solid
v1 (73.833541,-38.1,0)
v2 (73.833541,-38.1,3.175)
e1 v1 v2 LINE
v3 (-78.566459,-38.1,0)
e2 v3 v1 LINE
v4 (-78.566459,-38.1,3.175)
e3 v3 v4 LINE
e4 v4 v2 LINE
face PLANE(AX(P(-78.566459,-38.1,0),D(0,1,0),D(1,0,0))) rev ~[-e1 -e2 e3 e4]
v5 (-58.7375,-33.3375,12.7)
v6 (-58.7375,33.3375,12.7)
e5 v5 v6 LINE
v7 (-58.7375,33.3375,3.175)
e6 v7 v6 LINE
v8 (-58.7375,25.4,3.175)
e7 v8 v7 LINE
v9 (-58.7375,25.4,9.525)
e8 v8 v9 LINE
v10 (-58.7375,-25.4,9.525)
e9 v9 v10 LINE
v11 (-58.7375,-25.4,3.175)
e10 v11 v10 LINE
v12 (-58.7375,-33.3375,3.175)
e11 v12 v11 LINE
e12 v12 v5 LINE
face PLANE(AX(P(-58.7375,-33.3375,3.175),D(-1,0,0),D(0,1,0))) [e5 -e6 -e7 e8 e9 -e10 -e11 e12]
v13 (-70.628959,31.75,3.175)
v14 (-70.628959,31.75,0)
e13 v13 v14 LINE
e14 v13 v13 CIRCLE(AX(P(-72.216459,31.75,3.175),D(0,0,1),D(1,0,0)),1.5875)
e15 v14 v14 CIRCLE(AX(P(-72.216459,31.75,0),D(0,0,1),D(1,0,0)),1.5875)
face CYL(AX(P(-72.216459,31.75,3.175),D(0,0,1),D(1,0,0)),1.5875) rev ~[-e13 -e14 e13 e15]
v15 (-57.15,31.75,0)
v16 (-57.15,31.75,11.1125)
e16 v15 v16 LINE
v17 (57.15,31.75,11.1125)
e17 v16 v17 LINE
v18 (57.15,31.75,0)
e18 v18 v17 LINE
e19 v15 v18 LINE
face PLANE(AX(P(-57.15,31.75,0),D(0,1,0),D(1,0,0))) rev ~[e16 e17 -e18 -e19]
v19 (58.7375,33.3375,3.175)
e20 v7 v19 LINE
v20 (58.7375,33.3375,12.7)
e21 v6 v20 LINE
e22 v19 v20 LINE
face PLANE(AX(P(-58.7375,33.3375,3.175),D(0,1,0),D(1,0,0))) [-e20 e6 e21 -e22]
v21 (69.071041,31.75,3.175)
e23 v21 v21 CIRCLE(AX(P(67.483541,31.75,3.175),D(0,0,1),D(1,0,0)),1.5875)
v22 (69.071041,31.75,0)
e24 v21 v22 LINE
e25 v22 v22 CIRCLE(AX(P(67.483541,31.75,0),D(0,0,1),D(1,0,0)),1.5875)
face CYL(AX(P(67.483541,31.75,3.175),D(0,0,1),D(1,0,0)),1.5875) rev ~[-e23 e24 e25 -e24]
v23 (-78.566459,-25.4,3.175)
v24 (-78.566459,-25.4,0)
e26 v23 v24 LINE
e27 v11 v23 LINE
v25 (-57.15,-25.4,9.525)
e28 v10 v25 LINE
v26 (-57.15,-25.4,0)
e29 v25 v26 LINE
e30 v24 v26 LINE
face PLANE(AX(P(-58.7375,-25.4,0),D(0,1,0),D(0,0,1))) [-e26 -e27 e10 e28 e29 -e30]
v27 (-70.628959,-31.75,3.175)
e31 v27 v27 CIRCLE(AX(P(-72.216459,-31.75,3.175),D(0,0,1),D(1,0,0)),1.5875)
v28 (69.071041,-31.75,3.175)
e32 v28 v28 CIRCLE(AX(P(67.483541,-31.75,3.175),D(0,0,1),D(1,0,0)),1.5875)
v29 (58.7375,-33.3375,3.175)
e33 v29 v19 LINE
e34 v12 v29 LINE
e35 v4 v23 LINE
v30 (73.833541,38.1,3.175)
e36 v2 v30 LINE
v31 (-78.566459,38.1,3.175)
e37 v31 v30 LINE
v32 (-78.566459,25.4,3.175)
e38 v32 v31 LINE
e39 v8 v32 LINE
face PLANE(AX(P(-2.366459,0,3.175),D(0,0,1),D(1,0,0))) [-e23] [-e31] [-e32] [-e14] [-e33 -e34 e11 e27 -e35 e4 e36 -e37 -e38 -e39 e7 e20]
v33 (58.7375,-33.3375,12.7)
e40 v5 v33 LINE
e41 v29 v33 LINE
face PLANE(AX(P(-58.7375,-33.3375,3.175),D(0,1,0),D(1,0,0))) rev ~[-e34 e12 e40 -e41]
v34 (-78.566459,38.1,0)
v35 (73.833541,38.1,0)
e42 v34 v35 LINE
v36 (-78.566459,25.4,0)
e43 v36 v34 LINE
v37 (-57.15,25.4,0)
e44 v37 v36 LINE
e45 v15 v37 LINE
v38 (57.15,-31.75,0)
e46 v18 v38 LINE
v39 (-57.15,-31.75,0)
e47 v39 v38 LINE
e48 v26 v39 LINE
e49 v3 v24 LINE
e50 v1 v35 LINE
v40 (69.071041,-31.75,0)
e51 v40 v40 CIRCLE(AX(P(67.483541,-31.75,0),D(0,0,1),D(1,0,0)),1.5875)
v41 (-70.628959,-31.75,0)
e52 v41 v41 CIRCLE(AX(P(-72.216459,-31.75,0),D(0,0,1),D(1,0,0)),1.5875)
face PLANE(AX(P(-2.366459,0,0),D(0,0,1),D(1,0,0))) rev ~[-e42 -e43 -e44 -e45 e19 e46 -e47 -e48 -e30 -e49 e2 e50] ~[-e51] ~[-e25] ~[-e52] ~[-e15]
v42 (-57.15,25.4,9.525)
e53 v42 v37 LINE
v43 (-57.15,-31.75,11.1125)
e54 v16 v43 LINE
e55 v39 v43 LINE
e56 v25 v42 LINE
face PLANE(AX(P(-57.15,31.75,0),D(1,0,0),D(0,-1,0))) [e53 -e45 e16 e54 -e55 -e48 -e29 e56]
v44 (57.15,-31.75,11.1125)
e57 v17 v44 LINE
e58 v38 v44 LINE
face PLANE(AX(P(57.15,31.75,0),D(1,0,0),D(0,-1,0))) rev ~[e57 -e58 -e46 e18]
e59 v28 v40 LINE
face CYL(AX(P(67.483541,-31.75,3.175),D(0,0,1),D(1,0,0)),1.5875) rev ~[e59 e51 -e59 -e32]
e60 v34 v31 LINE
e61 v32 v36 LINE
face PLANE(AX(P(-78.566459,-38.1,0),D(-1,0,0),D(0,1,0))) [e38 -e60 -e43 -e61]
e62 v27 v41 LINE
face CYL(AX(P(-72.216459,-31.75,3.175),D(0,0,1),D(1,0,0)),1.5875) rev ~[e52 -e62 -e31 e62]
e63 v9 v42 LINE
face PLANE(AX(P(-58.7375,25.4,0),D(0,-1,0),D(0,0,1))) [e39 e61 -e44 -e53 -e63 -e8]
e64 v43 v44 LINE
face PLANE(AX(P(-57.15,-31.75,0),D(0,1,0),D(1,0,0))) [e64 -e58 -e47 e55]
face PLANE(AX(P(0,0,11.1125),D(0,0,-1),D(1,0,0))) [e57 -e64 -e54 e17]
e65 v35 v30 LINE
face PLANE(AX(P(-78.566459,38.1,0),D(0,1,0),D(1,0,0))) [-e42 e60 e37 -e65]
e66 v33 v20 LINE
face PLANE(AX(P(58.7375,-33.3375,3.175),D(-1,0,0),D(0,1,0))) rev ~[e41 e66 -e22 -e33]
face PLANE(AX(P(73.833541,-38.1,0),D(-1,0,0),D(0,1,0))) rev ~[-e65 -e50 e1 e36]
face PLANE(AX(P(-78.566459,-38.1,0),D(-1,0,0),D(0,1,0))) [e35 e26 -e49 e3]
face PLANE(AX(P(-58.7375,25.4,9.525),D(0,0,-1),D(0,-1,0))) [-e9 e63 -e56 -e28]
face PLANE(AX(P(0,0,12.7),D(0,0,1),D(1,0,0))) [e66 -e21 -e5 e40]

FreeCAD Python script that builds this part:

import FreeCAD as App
import Part
import Sketcher

V = App.Vector
Q = App.Units.Quantity

doc = App.newDocument("Part")
body = doc.addObject("PartDesign::Body", "Body")

# Sketch on XY plane
sketch1 = body.newObject("Sketcher::SketchObject", "Sketch")
sketch1.AttachmentSupport = (doc.getObject("XY_Plane"), [""])
sketch1.MapMode = "FlatFace"
sketch1.addGeometry([
    Part.LineSegment(V(-79, 38, 0), V(-79, -38, 0)),
    Part.LineSegment(V(-79, -38, 0), V(74, -38, 0)),
    Part.LineSegment(V(74, -38, 0), V(74, 38, 0)),
    Part.LineSegment(V(74, 38, 0), V(-79, 38, 0)),
], False)
sketch1.addConstraint([
    Sketcher.Constraint("Coincident", 0, 2, 1, 1),
    Sketcher.Constraint("Coincident", 1, 2, 2, 1),
    Sketcher.Constraint("Coincident", 2, 2, 3, 1),
    Sketcher.Constraint("Coincident", 3, 2, 0, 1),
    Sketcher.Constraint("Vertical", 0),
    Sketcher.Constraint("Horizontal", 1),
    Sketcher.Constraint("Vertical", 2),
    Sketcher.Constraint("Horizontal", 3),
    Sketcher.Constraint("DistanceX", 1, 1, 1, 2, Q("6 in")),
    Sketcher.Constraint("DistanceY", 0, 2, 0, 1, Q("3 in")),
    Sketcher.Constraint("DistanceY", 0, 2, -1, 1, Q("1.5 in")),
    Sketcher.Constraint("DistanceX", 0, 2, -1, 1, Q("78.566459 mm")),
])
pad1 = body.newObject("PartDesign::Pad", "Pad")
pad1.Profile = sketch1
pad1.Length = Q("0.125 in")

# Sketch on XY plane
sketch2 = body.newObject("Sketcher::SketchObject", "Sketch001")
sketch2.AttachmentSupport = (doc.getObject("XY_Plane"), [""])
sketch2.MapMode = "FlatFace"
sketch2.AttachmentOffset = App.Placement(V(0, 0, 0.125 * 25.4), App.Rotation())
sketch2.addGeometry([
    Part.LineSegment(V(-59, 33, 0), V(-59, -33, 0)),
    Part.LineSegment(V(-59, -33, 0), V(59, -33, 0)),
    Part.LineSegment(V(59, -33, 0), V(59, 33, 0)),
    Part.LineSegment(V(59, 33, 0), V(-59, 33, 0)),
], False)
sketch2.addConstraint([
    Sketcher.Constraint("Coincident", 0, 2, 1, 1),
    Sketcher.Constraint("Coincident", 1, 2, 2, 1),
    Sketcher.Constraint("Coincident", 2, 2, 3, 1),
    Sketcher.Constraint("Coincident", 3, 2, 0, 1),
    Sketcher.Constraint("Vertical", 0),
    Sketcher.Constraint("Horizontal", 1),
    Sketcher.Constraint("Vertical", 2),
    Sketcher.Constraint("Horizontal", 3),
    Sketcher.Constraint("Symmetric", 0, 2, 2, 2, -1, 1),
    Sketcher.Constraint("DistanceX", 1, 1, 1, 2, Q("4.625 in")),
    Sketcher.Constraint("DistanceY", 0, 2, 0, 1, Q("2.625 in")),
])
pad2 = body.newObject("PartDesign::Pad", "Pad001")
pad2.Profile = sketch2
pad2.Length = Q("0.375 in")

# Sketch on XY plane
sketch3 = body.newObject("Sketcher::SketchObject", "Sketch002")
sketch3.AttachmentSupport = (doc.getObject("XY_Plane"), [""])
sketch3.MapMode = "FlatFace"
sketch3.addGeometry([
    Part.LineSegment(V(-57, -32, 0), V(-57, 32, 0)),
    Part.LineSegment(V(-57, 32, 0), V(57, 32, 0)),
    Part.LineSegment(V(57, 32, 0), V(57, -32, 0)),
    Part.LineSegment(V(57, -32, 0), V(-57, -32, 0)),
], False)
sketch3.addConstraint([
    Sketcher.Constraint("Coincident", 0, 2, 1, 1),
    Sketcher.Constraint("Coincident", 1, 2, 2, 1),
    Sketcher.Constraint("Coincident", 2, 2, 3, 1),
    Sketcher.Constraint("Coincident", 3, 2, 0, 1),
    Sketcher.Constraint("Vertical", 0),
    Sketcher.Constraint("Horizontal", 1),
    Sketcher.Constraint("Vertical", 2),
    Sketcher.Constraint("Horizontal", 3),
    Sketcher.Constraint("Symmetric", 0, 2, 2, 2, -1, 1),
    Sketcher.Constraint("DistanceX", 1, 1, 1, 2, Q("4.5 in")),
    Sketcher.Constraint("DistanceY", 0, 1, 0, 2, Q("2.5 in")),
])
pocket1 = body.newObject("PartDesign::Pocket", "Pocket")
pocket1.Profile = sketch3
pocket1.Length = Q("0.4375 in")
pocket1.Reversed = True

# Sketch on YZ plane
sketch4 = body.newObject("Sketcher::SketchObject", "Sketch003")
sketch4.AttachmentSupport = (doc.getObject("YZ_Plane"), [""])
sketch4.MapMode = "FlatFace"
sketch4.AttachmentOffset = App.Placement(V(0, 0, -2.3125 * 25.4), App.Rotation())
sketch4.addGeometry([
    Part.LineSegment(V(25, 10, 0), V(25, 0, 0)),
    Part.LineSegment(V(25, 0, 0), V(-25, 0, 0)),
    Part.LineSegment(V(-25, 0, 0), V(-25, 10, 0)),
    Part.LineSegment(V(-25, 10, 0), V(25, 10, 0)),
], False)
sketch4.addConstraint([
    Sketcher.Constraint("Coincident", 0, 2, 1, 1),
    Sketcher.Constraint("Coincident", 1, 2, 2, 1),
    Sketcher.Constraint("Coincident", 2, 2, 3, 1),
    Sketcher.Constraint("Coincident", 3, 2, 0, 1),
    Sketcher.Constraint("Vertical", 0),
    Sketcher.Constraint("Horizontal", 1),
    Sketcher.Constraint("Vertical", 2),
    Sketcher.Constraint("Horizontal", 3),
    Sketcher.Constraint("Symmetric", 0, 2, 1, 2, -1, 1),
    Sketcher.Constraint("DistanceX", 1, 2, 1, 1, Q("2 in")),
    Sketcher.Constraint("DistanceY", 0, 2, 0, 1, Q("0.375 in")),
])
pocket2 = body.newObject("PartDesign::Pocket", "Pocket001")
pocket2.Profile = sketch4
pocket2.Type = "TwoLengths"
pocket2.Length = Q("1 in")
pocket2.Length2 = Q("1 in")
pocket2.Reversed = True

# Sketch on XY plane
sketch5 = body.newObject("Sketcher::SketchObject", "Sketch004")
sketch5.AttachmentSupport = (doc.getObject("XY_Plane"), [""])
sketch5.MapMode = "FlatFace"
sketch5.AttachmentOffset = App.Placement(V(0, 0, 0.125 * 25.4), App.Rotation())
sketch5.addGeometry([
    Part.Circle(V(-72.2, 31.8, 0), V(0, 0, 1), 1.6),
    Part.Circle(V(-72.2, -31.8, 0), V(0, 0, 1), 1.6),
    Part.Circle(V(67.5, 31.8, 0), V(0, 0, 1), 1.6),
    Part.Circle(V(67.5, -31.8, 0), V(0, 0, 1), 1.6),
], False)
sketch5.addConstraint([
    Sketcher.Constraint("Equal", 0, 1),
    Sketcher.Constraint("Equal", 1, 2),
    Sketcher.Constraint("Equal", 2, 3),
    Sketcher.Constraint("Symmetric", 0, 3, 1, 3, -1),
    Sketcher.Constraint("Symmetric", 2, 3, 3, 3, -1),
    Sketcher.Constraint("Horizontal", 0, 3, 2, 3),
    Sketcher.Constraint("Diameter", 0, Q("0.125 in")),
    Sketcher.Constraint("DistanceY", 1, 3, 0, 3, Q("2.5 in")),
    Sketcher.Constraint("DistanceX", 0, 3, 2, 3, Q("5.5 in")),
    Sketcher.Constraint("DistanceX", 0, 3, -1, 1, Q("72.216459 mm")),
])
pocket3 = body.newObject("PartDesign::Pocket", "Pocket002")
pocket3.Profile = sketch5
pocket3.Length = Q("1 in")

doc.recompute()
